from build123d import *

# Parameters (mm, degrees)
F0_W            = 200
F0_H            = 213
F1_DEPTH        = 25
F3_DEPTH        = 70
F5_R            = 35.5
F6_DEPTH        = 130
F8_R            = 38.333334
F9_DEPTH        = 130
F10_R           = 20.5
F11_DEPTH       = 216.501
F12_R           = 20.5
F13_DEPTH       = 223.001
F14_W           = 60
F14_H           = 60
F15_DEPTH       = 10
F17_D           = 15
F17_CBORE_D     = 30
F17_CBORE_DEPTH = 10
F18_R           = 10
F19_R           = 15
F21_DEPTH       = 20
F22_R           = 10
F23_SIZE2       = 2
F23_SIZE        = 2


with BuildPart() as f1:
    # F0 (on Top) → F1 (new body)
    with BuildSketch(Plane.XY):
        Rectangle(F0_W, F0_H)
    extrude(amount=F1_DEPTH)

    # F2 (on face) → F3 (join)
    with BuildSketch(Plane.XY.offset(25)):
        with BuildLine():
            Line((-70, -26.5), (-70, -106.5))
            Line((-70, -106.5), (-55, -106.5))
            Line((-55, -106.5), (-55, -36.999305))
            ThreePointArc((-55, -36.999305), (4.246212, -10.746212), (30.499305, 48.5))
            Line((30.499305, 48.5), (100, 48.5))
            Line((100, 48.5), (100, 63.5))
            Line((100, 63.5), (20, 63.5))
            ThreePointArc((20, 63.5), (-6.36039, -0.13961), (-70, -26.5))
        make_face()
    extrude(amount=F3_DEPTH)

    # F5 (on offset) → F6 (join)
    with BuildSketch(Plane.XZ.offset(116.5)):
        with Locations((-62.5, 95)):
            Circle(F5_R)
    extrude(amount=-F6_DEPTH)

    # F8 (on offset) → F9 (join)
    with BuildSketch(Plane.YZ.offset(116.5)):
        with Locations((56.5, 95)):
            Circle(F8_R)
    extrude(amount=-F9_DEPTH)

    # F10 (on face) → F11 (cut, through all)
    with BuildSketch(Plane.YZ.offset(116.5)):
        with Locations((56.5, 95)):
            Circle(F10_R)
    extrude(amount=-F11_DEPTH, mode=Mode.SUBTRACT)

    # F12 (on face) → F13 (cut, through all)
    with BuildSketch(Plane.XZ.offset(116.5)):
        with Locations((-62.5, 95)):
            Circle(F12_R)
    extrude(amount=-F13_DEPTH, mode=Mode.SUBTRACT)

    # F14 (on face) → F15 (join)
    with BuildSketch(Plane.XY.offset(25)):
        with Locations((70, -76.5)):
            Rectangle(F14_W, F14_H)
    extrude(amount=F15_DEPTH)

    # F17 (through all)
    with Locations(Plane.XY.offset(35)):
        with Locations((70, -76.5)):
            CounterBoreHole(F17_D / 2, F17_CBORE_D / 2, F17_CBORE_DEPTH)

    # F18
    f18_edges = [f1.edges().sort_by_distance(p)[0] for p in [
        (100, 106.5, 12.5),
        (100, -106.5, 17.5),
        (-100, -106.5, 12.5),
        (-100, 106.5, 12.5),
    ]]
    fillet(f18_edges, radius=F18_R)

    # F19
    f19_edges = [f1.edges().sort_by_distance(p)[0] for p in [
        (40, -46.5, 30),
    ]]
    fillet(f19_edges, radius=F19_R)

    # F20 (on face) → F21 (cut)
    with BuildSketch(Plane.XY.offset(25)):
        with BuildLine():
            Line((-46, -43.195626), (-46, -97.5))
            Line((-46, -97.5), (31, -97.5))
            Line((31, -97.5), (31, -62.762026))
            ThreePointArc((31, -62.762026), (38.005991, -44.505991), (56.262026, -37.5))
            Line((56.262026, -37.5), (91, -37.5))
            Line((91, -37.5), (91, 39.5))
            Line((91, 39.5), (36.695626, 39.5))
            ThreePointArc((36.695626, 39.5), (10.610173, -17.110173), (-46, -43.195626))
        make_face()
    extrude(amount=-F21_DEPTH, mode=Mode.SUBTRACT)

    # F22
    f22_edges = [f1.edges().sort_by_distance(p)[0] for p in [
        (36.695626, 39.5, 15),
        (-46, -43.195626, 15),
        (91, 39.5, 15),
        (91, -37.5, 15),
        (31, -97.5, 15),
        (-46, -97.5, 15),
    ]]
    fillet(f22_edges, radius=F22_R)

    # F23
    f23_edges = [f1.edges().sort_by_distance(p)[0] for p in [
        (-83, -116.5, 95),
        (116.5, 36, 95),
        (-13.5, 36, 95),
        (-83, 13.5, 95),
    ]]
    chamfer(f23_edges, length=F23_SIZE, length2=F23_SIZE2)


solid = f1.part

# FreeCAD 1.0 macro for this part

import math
import FreeCAD as App
import Part
import Sketcher
from FreeCAD import Vector


def edges_at(feature, points):
    """Names of the edges that pass closest to the given points."""
    edges = feature.Shape.Edges
    near = lambda p: min(range(len(edges)), key=lambda i: edges[i].distToShape(Part.Vertex(*p))[0])
    return sorted({f"Edge{near(p) + 1}" for p in points})

doc = App.newDocument("Part")
params = doc.addObject("Spreadsheet::Sheet", "Params")
for row, (alias, value) in enumerate([
    ("sketch1_width", "200 mm"),
    ("sketch1_height", "213 mm"),
    ("pad1_length", "25 mm"),
    ("sketch2_radius", "90.000001 mm"),
    ("sketch2_width", "15 mm"),
    ("sketch2_width2", "80 mm"),
    ("pad2_length", "70 mm"),
    ("sketch3_diameter", "71 mm"),
    ("pad3_length", "130 mm"),
    ("pad4_length", "130 mm"),
    ("sketch5_diameter", "41 mm"),
    ("sketch6_diameter", "41 mm"),
    ("sketch7_width", "60 mm"),
    ("pad5_length", "10 mm"),
    ("sketch8_diameter", "15 mm"),
    ("hole_diameter", "15 mm"),
    ("hole_cbore_diameter", "30 mm"),
    ("hole_cbore_depth", "10 mm"),
    ("fillet_radius", "10 mm"),
    ("fillet2_radius", "15 mm"),
    ("sketch9_radius", "89.999999 mm"),
    ("sketch9_width", "77 mm"),
    ("pocket3_length", "20 mm"),
    ("fillet3_radius", "10 mm"),
    ("chamfer_size", "2 mm"),
    ("chamfer_size2", "2 mm"),
], start=1):
    params.set(f"A{row}", alias)
    params.set(f"B{row}", "=" + value)
    params.setAlias(f"B{row}", alias)

body = doc.addObject("PartDesign::Body", "Body")

sketch1 = doc.addObject("Sketcher::SketchObject", "Sketch")
body.addObject(sketch1)
sketch1.AttachmentSupport = (doc.XY_Plane, [""])
sketch1.MapMode = "FlatFace"
sketch1.addGeometry(Part.LineSegment(Vector(-100, 106, 0), Vector(-100, -106, 0)), False)
sketch1.addGeometry(Part.LineSegment(Vector(-100, -106, 0), Vector(100, -106, 0)), False)
sketch1.addGeometry(Part.LineSegment(Vector(100, -106, 0), Vector(100, 106, 0)), False)
sketch1.addGeometry(Part.LineSegment(Vector(100, 106, 0), Vector(-100, 106, 0)), False)
sketch1.addConstraint(Sketcher.Constraint("Coincident", 0, 2, 1, 1))
sketch1.addConstraint(Sketcher.Constraint("Coincident", 1, 2, 2, 1))
sketch1.addConstraint(Sketcher.Constraint("Coincident", 2, 2, 3, 1))
sketch1.addConstraint(Sketcher.Constraint("Coincident", 3, 2, 0, 1))
sketch1.addConstraint(Sketcher.Constraint("Vertical", 0))
sketch1.addConstraint(Sketcher.Constraint("Horizontal", 1))
sketch1.addConstraint(Sketcher.Constraint("Vertical", 2))
sketch1.addConstraint(Sketcher.Constraint("Horizontal", 3))
sketch1.addConstraint(Sketcher.Constraint("Symmetric", 0, 2, 2, 2, -1, 1))
sketch1.addConstraint(Sketcher.Constraint("DistanceX", 1, 1, 1, 2, 200.0))
sketch1.addConstraint(Sketcher.Constraint("DistanceY", 0, 2, 0, 1, 213.0))
sketch1.setExpression("Constraints[9]", "Params.sketch1_width")
sketch1.setExpression("Constraints[10]", "Params.sketch1_height")
pad1 = doc.addObject("PartDesign::Pad", "Pad")
body.addObject(pad1)
pad1.Profile = sketch1
pad1.setExpression("Length", "Params.pad1_length")

sketch2 = doc.addObject("Sketcher::SketchObject", "Sketch001")
body.addObject(sketch2)
sketch2.AttachmentSupport = (doc.XY_Plane, [""])
sketch2.MapMode = "FlatFace"
sketch2.AttachmentOffset = App.Placement(Vector(0, 0, 25), App.Rotation())
sketch2.addGeometry(Part.LineSegment(Vector(-70, -26, 0), Vector(-70, -106, 0)), False)
sketch2.addGeometry(Part.LineSegment(Vector(-70, -106, 0), Vector(-55, -106, 0)), False)
sketch2.addGeometry(Part.LineSegment(Vector(-55, -106, 0), Vector(-55, -37, 0)), False)
sketch2.addGeometry(Part.ArcOfCircle(Part.Circle(Vector(-59, 53, 0), Vector(0, 0, 1), 90), math.radians(-87), math.radians(-3)), False)
sketch2.addGeometry(Part.LineSegment(Vector(30, 48, 0), Vector(100, 48, 0)), False)
sketch2.addGeometry(Part.LineSegment(Vector(100, 48, 0), Vector(100, 64, 0)), False)
sketch2.addGeometry(Part.LineSegment(Vector(100, 64, 0), Vector(20, 64, 0)), False)
sketch2.addGeometry(Part.ArcOfCircle(Part.Circle(Vector(-70, 64, 0), Vector(0, 0, 1), 90), math.radians(-90), math.radians(0)), False)
sketch2.addConstraint(Sketcher.Constraint("Coincident", 0, 2, 1, 1))
sketch2.addConstraint(Sketcher.Constraint("Coincident", 1, 2, 2, 1))
sketch2.addConstraint(Sketcher.Constraint("Coincident", 2, 2, 3, 1))
sketch2.addConstraint(Sketcher.Constraint("Coincident", 3, 2, 4, 1))
sketch2.addConstraint(Sketcher.Constraint("Coincident", 4, 2, 5, 1))
sketch2.addConstraint(Sketcher.Constraint("Coincident", 5, 2, 6, 1))
sketch2.addConstraint(Sketcher.Constraint("Coincident", 6, 2, 7, 2))
sketch2.addConstraint(Sketcher.Constraint("Coincident", 7, 1, 0, 1))
sketch2.addConstraint(Sketcher.Constraint("Vertical", 0))
sketch2.addConstraint(Sketcher.Constraint("Horizontal", 1))
sketch2.addConstraint(Sketcher.Constraint("Vertical", 2))
sketch2.addConstraint(Sketcher.Constraint("Horizontal", 4))
sketch2.addConstraint(Sketcher.Constraint("Vertical", 5))
sketch2.addConstraint(Sketcher.Constraint("Horizontal", 6))
sketch2.addConstraint(Sketcher.Constraint("Equal", 3, 7))
sketch2.addConstraint(Sketcher.Constraint("Horizontal", 7, 3, 5, 2))
sketch2.addConstraint(Sketcher.Constraint("Vertical", 7, 3, 0, 2))
sketch2.addConstraint(Sketcher.Constraint("Equal", 6, 0))
sketch2.addConstraint(Sketcher.Constraint("Equal", 4, 2))
sketch2.addConstraint(Sketcher.Constraint("Equal", 1, 5))
sketch2.addConstraint(Sketcher.Constraint("Radius", 3, 90.000001))
sketch2.addConstraint(Sketcher.Constraint("DistanceX", 1, 1, 1, 2, 15.0))
sketch2.addConstraint(Sketcher.Constraint("DistanceX", 6, 2, 6, 1, 80.0))
sketch2.addConstraint(Sketcher.Constraint("DistanceX", 7, 3, -1, 1, 70.000001))
sketch2.addConstraint(Sketcher.Constraint("DistanceY", -1, 1, 7, 3, 63.500001))
sketch2.addConstraint(Sketcher.Constraint("DistanceX", 3, 3, -1, 1, 59.393399))
sketch2.setExpression("Constraints[20]", "Params.sketch2_radius")
sketch2.setExpression("Constraints[21]", "Params.sketch2_width")
sketch2.setExpression("Constraints[22]", "Params.sketch2_width2")
pad2 = doc.addObject("PartDesign::Pad", "Pad001")
body.addObject(pad2)
pad2.Profile = sketch2
pad2.setExpression("Length", "Params.pad2_length")

sketch3 = doc.addObject("Sketcher::SketchObject", "Sketch002")
body.addObject(sketch3)
sketch3.AttachmentSupport = (doc.XZ_Plane, [""])
sketch3.MapMode = "FlatFace"
sketch3.AttachmentOffset = App.Placement(Vector(0, 0, 116.5), App.Rotation())
sketch3.addGeometry(Part.Circle(Vector(-62, 95, 0), Vector(0, 0, 1), 36), False)
sketch3.addConstraint(Sketcher.Constraint("Diameter", 0, 71.0))
sketch3.addConstraint(Sketcher.Constraint("DistanceY", -1, 1, 0, 3, 95.0))
sketch3.addConstraint(Sketcher.Constraint("DistanceX", 0, 3, -1, 1, 62.5))
sketch3.setExpression("Constraints[0]", "Params.sketch3_diameter")
pad3 = doc.addObject("PartDesign::Pad", "Pad002")
body.addObject(pad3)
pad3.Profile = sketch3
pad3.setExpression("Length", "Params.pad3_length")
pad3.Reversed = True

sketch4 = doc.addObject("Sketcher::SketchObject", "Sketch003")
body.addObject(sketch4)
sketch4.AttachmentSupport = (doc.YZ_Plane, [""])
sketch4.MapMode = "FlatFace"
sketch4.AttachmentOffset = App.Placement(Vector(0, 0, 116.5), App.Rotation())
sketch4.addGeometry(Part.Circle(Vector(56, 95, 0), Vector(0, 0, 1), 38), False)
sketch4.addConstraint(Sketcher.Constraint("DistanceY", -1, 1, 0, 3, 95.0))
sketch4.addConstraint(Sketcher.Constraint("DistanceX", -1, 1, 0, 3, 56.5))
sketch4.addConstraint(Sketcher.Constraint("Diameter", 0, 76.666668))
pad4 = doc.addObject("PartDesign::Pad", "Pad003")
body.addObject(pad4)
pad4.Profile = sketch4
pad4.setExpression("Length", "Params.pad4_length")
pad4.Reversed = True

sketch5 = doc.addObject("Sketcher::SketchObject", "Sketch004")
body.addObject(sketch5)
sketch5.AttachmentSupport = (doc.YZ_Plane, [""])
sketch5.MapMode = "FlatFace"
sketch5.AttachmentOffset = App.Placement(Vector(0, 0, 116.5), App.Rotation())
sketch5.addGeometry(Part.Circle(Vector(56, 95, 0), Vector(0, 0, 1), 20), False)
sketch5.addConstraint(Sketcher.Constraint("Diameter", 0, 41.0))
sketch5.addConstraint(Sketcher.Constraint("DistanceY", -1, 1, 0, 3, 95.0))
sketch5.addConstraint(Sketcher.Constraint("DistanceX", -1, 1, 0, 3, 56.5))
sketch5.setExpression("Constraints[0]", "Params.sketch5_diameter")
pocket1 = doc.addObject("PartDesign::Pocket", "Pocket")
body.addObject(pocket1)
pocket1.Profile = sketch5
pocket1.Type = "ThroughAll"

sketch6 = doc.addObject("Sketcher::SketchObject", "Sketch005")
body.addObject(sketch6)
sketch6.AttachmentSupport = (doc.XZ_Plane, [""])
sketch6.MapMode = "FlatFace"
sketch6.AttachmentOffset = App.Placement(Vector(0, 0, 116.5), App.Rotation())
sketch6.addGeometry(Part.Circle(Vector(-62, 95, 0), Vector(0, 0, 1), 20), False)
sketch6.addConstraint(Sketcher.Constraint("Diameter", 0, 41.0))
sketch6.addConstraint(Sketcher.Constraint("DistanceY", -1, 1, 0, 3, 95.0))
sketch6.addConstraint(Sketcher.Constraint("DistanceX", 0, 3, -1, 1, 62.5))
sketch6.setExpression("Constraints[0]", "Params.sketch6_diameter")
pocket2 = doc.addObject("PartDesign::Pocket", "Pocket001")
body.addObject(pocket2)
pocket2.Profile = sketch6
pocket2.Type = "ThroughAll"

sketch7 = doc.addObject("Sketcher::SketchObject", "Sketch006")
body.addObject(sketch7)
sketch7.AttachmentSupport = (doc.XY_Plane, [""])
sketch7.MapMode = "FlatFace"
sketch7.AttachmentOffset = App.Placement(Vector(0, 0, 25), App.Rotation())
sketch7.addGeometry(Part.LineSegment(Vector(40, -46, 0), Vector(40, -106, 0)), False)
sketch7.addGeometry(Part.LineSegment(Vector(40, -106, 0), Vector(100, -106, 0)), False)
sketch7.addGeometry(Part.LineSegment(Vector(100, -106, 0), Vector(100, -46, 0)), False)
sketch7.addGeometry(Part.LineSegment(Vector(100, -46, 0), Vector(40, -46, 0)), False)
sketch7.addConstraint(Sketcher.Constraint("Coincident", 0, 2, 1, 1))
sketch7.addConstraint(Sketcher.Constraint("Coincident", 1, 2, 2, 1))
sketch7.addConstraint(Sketcher.Constraint("Coincident", 2, 2, 3, 1))
sketch7.addConstraint(Sketcher.Constraint("Coincident", 3, 2, 0, 1))
sketch7.addConstraint(Sketcher.Constraint("Vertical", 0))
sketch7.addConstraint(Sketcher.Constraint("Horizontal", 1))
sketch7.addConstraint(Sketcher.Constraint("Vertical", 2))
sketch7.addConstraint(Sketcher.Constraint("Horizontal", 3))
sketch7.addConstraint(Sketcher.Constraint("Equal", 3, 0))
sketch7.addConstraint(Sketcher.Constraint("DistanceX", 1, 1, 1, 2, 60.0))
sketch7.addConstraint(Sketcher.Constraint("DistanceX", -1, 1, 0, 2, 40.0))
sketch7.addConstraint(Sketcher.Constraint("DistanceY", 0, 2, -1, 1, 106.5))
sketch7.setExpression("Constraints[9]", "Params.sketch7_width")
pad5 = doc.addObject("PartDesign::Pad", "Pad004")
body.addObject(pad5)
pad5.Profile = sketch7
pad5.setExpression("Length", "Params.pad5_length")

sketch8 = doc.addObject("Sketcher::SketchObject", "Sketch007")
body.addObject(sketch8)
sketch8.AttachmentSupport = (doc.XY_Plane, [""])
sketch8.MapMode = "FlatFace"
sketch8.AttachmentOffset = App.Placement(Vector(0, 0, 35), App.Rotation())
sketch8.addGeometry(Part.Circle(Vector(70, -76, 0), Vector(0, 0, 1), 8), False)
sketch8.addConstraint(Sketcher.Constraint("Diameter", 0, 15.0))
sketch8.addConstraint(Sketcher.Constraint("DistanceX", -1, 1, 0, 3, 70.0))
sketch8.addConstraint(Sketcher.Constraint("DistanceY", 0, 3, -1, 1, 76.5))
sketch8.setExpression("Constraints[0]", "Params.sketch8_diameter")
doc.recompute()
hole = doc.addObject("PartDesign::Hole", "Hole")
body.addObject(hole)
hole.Profile = sketch8
hole.ThreadType = "None"
hole.setExpression("Diameter", "Params.hole_diameter")
hole.DepthType = "ThroughAll"
hole.HoleCutType = "Counterbore"
hole.setExpression("HoleCutDiameter", "Params.hole_cbore_diameter")
hole.setExpression("HoleCutDepth", "Params.hole_cbore_depth")
doc.recompute()

fillet = doc.addObject("PartDesign::Fillet", "Fillet")
body.addObject(fillet)
fillet.Base = (hole, edges_at(hole, [
    (100, 106.5, 12.5),
    (100, -106.5, 17.5),
    (-100, -106.5, 12.5),
    (-100, 106.5, 12.5),
]))
fillet.setExpression("Radius", "Params.fillet_radius")
doc.recompute()

fillet2 = doc.addObject("PartDesign::Fillet", "Fillet001")
body.addObject(fillet2)
fillet2.Base = (fillet, edges_at(fillet, [(40, -46.5, 30)]))
fillet2.setExpression("Radius", "Params.fillet2_radius")

sketch9 = doc.addObject("Sketcher::SketchObject", "Sketch008")
body.addObject(sketch9)
sketch9.AttachmentSupport = (doc.XY_Plane, [""])
sketch9.MapMode = "FlatFace"
sketch9.AttachmentOffset = App.Placement(Vector(0, 0, 25), App.Rotation())
sketch9.addGeometry(Part.LineSegment(Vector(-46, -43, 0), Vector(-46, -98, 0)), False)
sketch9.addGeometry(Part.LineSegment(Vector(-46, -98, 0), Vector(31, -98, 0)), False)
sketch9.addGeometry(Part.LineSegment(Vector(31, -98, 0), Vector(31, -63, 0)), False)
sketch9.addGeometry(Part.ArcOfCircle(Part.Circle(Vector(55, -62, 0), Vector(0, 0, 1), 24), math.radians(87), math.radians(183)), False)
sketch9.addGeometry(Part.LineSegment(Vector(56, -38, 0), Vector(91, -38, 0)), False)
sketch9.addGeometry(Part.LineSegment(Vector(91, -38, 0), Vector(91, 40, 0)), False)
sketch9.addGeometry(Part.LineSegment(Vector(91, 40, 0), Vector(37, 40, 0)), False)
sketch9.addGeometry(Part.ArcOfCircle(Part.Circle(Vector(-53, 47, 0), Vector(0, 0, 1), 90), math.radians(-86), math.radians(-4)), False)
sketch9.addConstraint(Sketcher.Constraint("Coincident", 0, 2, 1, 1))
sketch9.addConstraint(Sketcher.Constraint("Coincident", 1, 2, 2, 1))
sketch9.addConstraint(Sketcher.Constraint("Coincident", 2, 2, 3, 2))
sketch9.addConstraint(Sketcher.Constraint("Coincident", 3, 1, 4, 1))
sketch9.addConstraint(Sketcher.Constraint("Coincident", 4, 2, 5, 1))
sketch9.addConstraint(Sketcher.Constraint("Coincident", 5, 2, 6, 1))
sketch9.addConstraint(Sketcher.Constraint("Coincident", 6, 2, 7, 2))
sketch9.addConstraint(Sketcher.Constraint("Coincident", 7, 1, 0, 1))
sketch9.addConstraint(Sketcher.Constraint("Vertical", 0))
sketch9.addConstraint(Sketcher.Constraint("Horizontal", 1))
sketch9.addConstraint(Sketcher.Constraint("Vertical", 2))
sketch9.addConstraint(Sketcher.Constraint("Horizontal", 4))
sketch9.addConstraint(Sketcher.Constraint("Vertical", 5))
sketch9.addConstraint(Sketcher.Constraint("Horizontal", 6))
sketch9.addConstraint(Sketcher.Constraint("Equal", 6, 0))
sketch9.addConstraint(Sketcher.Constraint("Equal", 4, 2))
sketch9.addConstraint(Sketcher.Constraint("Equal", 1, 5))
sketch9.addConstraint(Sketcher.Constraint("Radius", 7, 89.999999))
sketch9.addConstraint(Sketcher.Constraint("DistanceX", 1, 1, 1, 2, 77.0))
sketch9.addConstraint(Sketcher.Constraint("DistanceX", -1, 1, 3, 3, 55.000001))
sketch9.addConstraint(Sketcher.Constraint("DistanceX", 0, 2, -1, 1, 46.0))
sketch9.addConstraint(Sketcher.Constraint("DistanceX", -1, 1, 4, 2, 91.0))
sketch9.addConstraint(Sketcher.Constraint("DistanceY", 0, 2, 3, 3, 35.999999))
sketch9.addConstraint(Sketcher.Constraint("DistanceY", 3, 3, -1, 1, 61.500001))
sketch9.addConstraint(Sketcher.Constraint("Radius", 3, 24.03316))
sketch9.addConstraint(Sketcher.Constraint("DistanceX", 6, 2, 3, 1, 19.5664))
sketch9.setExpression("Constraints[17]", "Params.sketch9_radius")
sketch9.setExpression("Constraints[18]", "Params.sketch9_width")
pocket3 = doc.addObject("PartDesign::Pocket", "Pocket002")
body.addObject(pocket3)
pocket3.Profile = sketch9
pocket3.setExpression("Length", "Params.pocket3_length")
doc.recompute()

fillet3 = doc.addObject("PartDesign::Fillet", "Fillet002")
body.addObject(fillet3)
fillet3.Base = (pocket3, edges_at(pocket3, [
    (36.696, 39.5, 15),
    (-46, -43.196, 15),
    (91, 39.5, 15),
    (91, -37.5, 15),
    (31, -97.5, 15),
    (-46, -97.5, 15),
]))
fillet3.setExpression("Radius", "Params.fillet3_radius")
doc.recompute()

chamfer = doc.addObject("PartDesign::Chamfer", "Chamfer")
body.addObject(chamfer)
chamfer.Base = (fillet3, edges_at(fillet3, [
    (-83, -116.5, 95),
    (116.5, 36, 95),
    (-13.5, 36, 95),
    (-83, 13.5, 95),
]))
chamfer.ChamferType = "Two distances"
chamfer.setExpression("Size", "Params.chamfer_size")
chamfer.setExpression("Size2", "Params.chamfer_size2")

doc.recompute()
